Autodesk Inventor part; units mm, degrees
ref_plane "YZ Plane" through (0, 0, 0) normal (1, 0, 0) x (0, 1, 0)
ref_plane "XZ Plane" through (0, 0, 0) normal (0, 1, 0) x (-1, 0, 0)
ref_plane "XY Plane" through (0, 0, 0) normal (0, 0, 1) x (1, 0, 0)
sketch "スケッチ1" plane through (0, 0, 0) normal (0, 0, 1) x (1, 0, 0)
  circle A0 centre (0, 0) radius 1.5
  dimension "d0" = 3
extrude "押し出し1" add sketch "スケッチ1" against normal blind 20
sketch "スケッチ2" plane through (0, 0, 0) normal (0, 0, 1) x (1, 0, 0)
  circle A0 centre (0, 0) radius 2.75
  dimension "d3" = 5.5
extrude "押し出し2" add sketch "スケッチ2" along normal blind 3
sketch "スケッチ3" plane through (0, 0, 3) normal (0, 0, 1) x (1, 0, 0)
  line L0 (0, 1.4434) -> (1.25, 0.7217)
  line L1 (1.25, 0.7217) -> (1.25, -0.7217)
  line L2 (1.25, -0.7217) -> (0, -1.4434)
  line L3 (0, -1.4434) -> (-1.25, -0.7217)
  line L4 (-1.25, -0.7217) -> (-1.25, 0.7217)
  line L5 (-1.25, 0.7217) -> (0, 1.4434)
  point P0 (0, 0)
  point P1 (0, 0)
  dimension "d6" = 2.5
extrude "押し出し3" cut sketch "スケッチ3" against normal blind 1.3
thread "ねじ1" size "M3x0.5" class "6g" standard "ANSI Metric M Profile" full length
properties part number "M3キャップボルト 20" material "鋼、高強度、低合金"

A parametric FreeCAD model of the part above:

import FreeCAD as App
import Part
import Sketcher

V = App.Vector
Q = App.Units.Quantity

doc = App.newDocument("Part")
params = doc.addObject("Spreadsheet::Sheet", "Params")
for row, (alias, value) in enumerate([
    ("sketch1_diameter", "3 mm"),
    ("pad1_length", "20 mm"),
    ("sketch2_diameter", "5.5 mm"),
    ("pad2_length", "3 mm"),
    ("pocket1_length", "1.3 mm"),
], start=1):
    params.set(f"A{row}", alias)
    params.set(f"B{row}", "=" + value)
    params.setAlias(f"B{row}", alias)

body = doc.addObject("PartDesign::Body", "Body")

# Sketch on XY plane
sketch1 = body.newObject("Sketcher::SketchObject", "Sketch")
sketch1.AttachmentSupport = (doc.getObject("XY_Plane"), [""])
sketch1.MapMode = "FlatFace"
sketch1.addGeometry(Part.Circle(V(0, 0, 0), V(0, 0, 1), 1.5), False)
sketch1.addConstraint([
    Sketcher.Constraint("Coincident", 0, 3, -1, 1),
    Sketcher.Constraint("Diameter", 0, Q("3 mm")),
])
sketch1.setExpression("Constraints[1]", "Params.sketch1_diameter")
pad1 = body.newObject("PartDesign::Pad", "Pad")
pad1.Profile = sketch1
pad1.setExpression("Length", "Params.pad1_length")
pad1.Reversed = True

# Sketch on XY plane
sketch2 = body.newObject("Sketcher::SketchObject", "Sketch001")
sketch2.AttachmentSupport = (doc.getObject("XY_Plane"), [""])
sketch2.MapMode = "FlatFace"
sketch2.addGeometry(Part.Circle(V(0, 0, 0), V(0, 0, 1), 2.75), False)
sketch2.addConstraint([
    Sketcher.Constraint("Coincident", 0, 3, -1, 1),
    Sketcher.Constraint("Diameter", 0, Q("5.5 mm")),
])
sketch2.setExpression("Constraints[1]", "Params.sketch2_diameter")
pad2 = body.newObject("PartDesign::Pad", "Pad001")
pad2.Profile = sketch2
pad2.setExpression("Length", "Params.pad2_length")

# Sketch on XY plane
sketch3 = body.newObject("Sketcher::SketchObject", "Sketch002")
sketch3.AttachmentSupport = (doc.getObject("XY_Plane"), [""])
sketch3.MapMode = "FlatFace"
sketch3.AttachmentOffset = App.Placement(V(0, 0, 3), App.Rotation())
sketch3.addGeometry([
    Part.LineSegment(V(1.25, 0.7217, 0), V(0, 1.4434, 0)),  # 0
    Part.LineSegment(V(0, 1.4434, 0), V(-1.25, 0.7217, 0)),  # 1
    Part.LineSegment(V(-1.25, 0.7217, 0), V(-1.25, -0.7217, 0)),  # 2
    Part.LineSegment(V(-1.25, -0.7217, 0), V(0, -1.4434, 0)),  # 3
    Part.LineSegment(V(0, -1.4434, 0), V(1.25, -0.7217, 0)),  # 4
    Part.LineSegment(V(1.25, -0.7217, 0), V(1.25, 0.7217, 0)),  # 5
], False)
sketch3.addConstraint([
    Sketcher.Constraint("Coincident", 0, 2, 1, 1),
    Sketcher.Constraint("Coincident", 1, 2, 2, 1),
    Sketcher.Constraint("Coincident", 2, 2, 3, 1),
    Sketcher.Constraint("Coincident", 3, 2, 4, 1),
    Sketcher.Constraint("Coincident", 4, 2, 5, 1),
    Sketcher.Constraint("Coincident", 5, 2, 0, 1),
    Sketcher.Constraint("Vertical", 2),
    Sketcher.Constraint("Vertical", 5),
    Sketcher.Constraint("Symmetric", 0, 2, 3, 2, -1, 1),
    Sketcher.Constraint("Symmetric", 1, 2, 4, 2, -1, 1),
    Sketcher.Constraint("PointOnObject", 0, 2, -2),
    Sketcher.Constraint("Parallel", 0, 3),
    Sketcher.Constraint("Horizontal", 2, 2, 4, 2),
    Sketcher.Constraint("DistanceX", 2, 2, 4, 2, Q("2.5 mm")),
    Sketcher.Constraint("Angle", 0, Q("149.9996 deg")),
    Sketcher.Constraint("DistanceY", 2, 2, 2, 1, Q("1.4434 mm")),
])
pocket1 = body.newObject("PartDesign::Pocket", "Pocket")
pocket1.Profile = sketch3
pocket1.setExpression("Length", "Params.pocket1_length")

doc.recompute()
